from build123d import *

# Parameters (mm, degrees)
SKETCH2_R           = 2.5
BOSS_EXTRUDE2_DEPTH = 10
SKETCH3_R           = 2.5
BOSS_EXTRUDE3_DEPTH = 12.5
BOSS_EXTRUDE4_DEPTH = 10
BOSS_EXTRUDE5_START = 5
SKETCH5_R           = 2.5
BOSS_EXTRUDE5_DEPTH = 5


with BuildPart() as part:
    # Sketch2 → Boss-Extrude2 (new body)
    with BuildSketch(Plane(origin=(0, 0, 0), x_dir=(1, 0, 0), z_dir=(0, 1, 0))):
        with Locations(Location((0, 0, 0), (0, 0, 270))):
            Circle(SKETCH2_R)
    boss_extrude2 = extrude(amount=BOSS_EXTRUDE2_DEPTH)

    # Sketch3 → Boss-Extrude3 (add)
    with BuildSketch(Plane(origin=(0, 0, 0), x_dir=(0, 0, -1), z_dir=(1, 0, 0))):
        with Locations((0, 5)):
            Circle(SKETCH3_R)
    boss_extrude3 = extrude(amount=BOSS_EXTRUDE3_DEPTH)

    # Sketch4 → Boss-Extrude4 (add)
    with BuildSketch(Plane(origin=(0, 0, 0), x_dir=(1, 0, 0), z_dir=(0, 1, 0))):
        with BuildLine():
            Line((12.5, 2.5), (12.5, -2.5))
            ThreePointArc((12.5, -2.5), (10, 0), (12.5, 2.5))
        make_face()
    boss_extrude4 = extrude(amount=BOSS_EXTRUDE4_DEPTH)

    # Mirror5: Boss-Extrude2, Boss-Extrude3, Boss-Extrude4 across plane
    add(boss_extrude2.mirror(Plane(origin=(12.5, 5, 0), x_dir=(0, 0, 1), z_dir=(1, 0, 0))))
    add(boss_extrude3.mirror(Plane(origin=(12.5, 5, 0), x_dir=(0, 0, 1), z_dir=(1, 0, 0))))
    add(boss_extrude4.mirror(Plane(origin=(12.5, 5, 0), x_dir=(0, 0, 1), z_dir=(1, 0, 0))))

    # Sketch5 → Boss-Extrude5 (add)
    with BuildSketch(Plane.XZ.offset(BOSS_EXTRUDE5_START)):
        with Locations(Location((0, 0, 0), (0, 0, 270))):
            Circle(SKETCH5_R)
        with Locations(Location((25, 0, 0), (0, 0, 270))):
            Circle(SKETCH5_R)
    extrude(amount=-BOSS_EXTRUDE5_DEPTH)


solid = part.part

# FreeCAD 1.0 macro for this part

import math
import FreeCAD as App
import Part
import Sketcher

V = App.Vector
Q = App.Units.Quantity

doc = App.newDocument("Part")
body = doc.addObject("PartDesign::Body", "Body")

# Sketch on XZ plane
sketch1 = doc.addObject("Sketcher::SketchObject", "Sketch")
body.addObject(sketch1)
sketch1.AttachmentSupport = (doc.XZ_Plane, [""])
sketch1.MapMode = "FlatFace"
sketch1.addGeometry(Part.Circle(V(0, 0, 0), V(0, 0, 1), 2.5), False)
sketch1.addConstraint([
    Sketcher.Constraint("Coincident", 0, 3, -1, 1),
    Sketcher.Constraint("Diameter", 0, Q("5 mm")),
])
pad1 = doc.addObject("PartDesign::Pad", "Pad")
body.addObject(pad1)
pad1.Profile = sketch1
pad1.Length = 10
pad1.Reversed = True

# Sketch on YZ plane
sketch2 = doc.addObject("Sketcher::SketchObject", "Sketch001")
body.addObject(sketch2)
sketch2.AttachmentSupport = (doc.YZ_Plane, [""])
sketch2.MapMode = "FlatFace"
sketch2.addGeometry(Part.Circle(V(5, 0, 0), V(0, 0, 1), 2.5), False)
sketch2.addConstraint([
    Sketcher.Constraint("PointOnObject", 0, 3, -1),
    Sketcher.Constraint("Diameter", 0, Q("5 mm")),
    Sketcher.Constraint("DistanceX", -1, 1, 0, 3, Q("5 mm")),
])
pad2 = doc.addObject("PartDesign::Pad", "Pad001")
body.addObject(pad2)
pad2.Profile = sketch2
pad2.Length = 12.5

# Sketch on XZ plane
sketch3 = doc.addObject("Sketcher::SketchObject", "Sketch002")
body.addObject(sketch3)
sketch3.AttachmentSupport = (doc.XZ_Plane, [""])
sketch3.MapMode = "FlatFace"
sketch3.addGeometry([
    Part.LineSegment(V(12.5, 2.5, 0), V(12.5, -2.5, 0)),
    Part.ArcOfCircle(Part.Circle(V(12.5, 0, 0), V(0, 0, 1), 2.5), math.radians(90), math.radians(270)),
], False)
sketch3.addConstraint([
    Sketcher.Constraint("Coincident", 0, 1, 1, 1),
    Sketcher.Constraint("Coincident", 1, 2, 0, 2),
    Sketcher.Constraint("Vertical", 0),
    Sketcher.Constraint("PointOnObject", 1, 3, -1),
    Sketcher.Constraint("Vertical", 1, 3, 0, 1),
    Sketcher.Constraint("Radius", 1, Q("2.5 mm")),
    Sketcher.Constraint("DistanceX", -1, 1, 1, 3, Q("12.5 mm")),
])
pad3 = doc.addObject("PartDesign::Pad", "Pad002")
body.addObject(pad3)
pad3.Profile = sketch3
pad3.Length = 10
pad3.Reversed = True
doc.recompute()

datumplane = doc.addObject("PartDesign::Plane", "DatumPlane")
body.addObject(datumplane)
datumplane.AttachmentSupport = (doc.YZ_Plane, [""])
datumplane.MapMode = "FlatFace"
datumplane.AttachmentOffset = App.Placement(V(0, 0, 12.5), App.Rotation())
mirrored = doc.addObject("PartDesign::Mirrored", "Mirrored")
body.addObject(mirrored)
mirrored.Originals = [pad1, pad2, pad3]
mirrored.MirrorPlane = (datumplane, [""])
body.Tip = mirrored

# Sketch on XZ plane
sketch4 = doc.addObject("Sketcher::SketchObject", "Sketch003")
body.addObject(sketch4)
sketch4.AttachmentSupport = (doc.XZ_Plane, [""])
sketch4.MapMode = "FlatFace"
sketch4.AttachmentOffset = App.Placement(V(0, 0, 5), App.Rotation())
sketch4.addGeometry([
    Part.Circle(V(0, 0, 0), V(0, 0, 1), 2.5),
    Part.Circle(V(25, 0, 0), V(0, 0, 1), 2.5),
], False)
sketch4.addConstraint([
    Sketcher.Constraint("Coincident", 0, 3, -1, 1),
    Sketcher.Constraint("Equal", 0, 1),
    Sketcher.Constraint("PointOnObject", 1, 3, -1),
    Sketcher.Constraint("Diameter", 0, Q("5 mm")),
    Sketcher.Constraint("DistanceX", -1, 1, 1, 3, Q("25 mm")),
])
pad4 = doc.addObject("PartDesign::Pad", "Pad003")
body.addObject(pad4)
pad4.Profile = sketch4
pad4.Length = 5
pad4.Reversed = True

doc.recompute()
